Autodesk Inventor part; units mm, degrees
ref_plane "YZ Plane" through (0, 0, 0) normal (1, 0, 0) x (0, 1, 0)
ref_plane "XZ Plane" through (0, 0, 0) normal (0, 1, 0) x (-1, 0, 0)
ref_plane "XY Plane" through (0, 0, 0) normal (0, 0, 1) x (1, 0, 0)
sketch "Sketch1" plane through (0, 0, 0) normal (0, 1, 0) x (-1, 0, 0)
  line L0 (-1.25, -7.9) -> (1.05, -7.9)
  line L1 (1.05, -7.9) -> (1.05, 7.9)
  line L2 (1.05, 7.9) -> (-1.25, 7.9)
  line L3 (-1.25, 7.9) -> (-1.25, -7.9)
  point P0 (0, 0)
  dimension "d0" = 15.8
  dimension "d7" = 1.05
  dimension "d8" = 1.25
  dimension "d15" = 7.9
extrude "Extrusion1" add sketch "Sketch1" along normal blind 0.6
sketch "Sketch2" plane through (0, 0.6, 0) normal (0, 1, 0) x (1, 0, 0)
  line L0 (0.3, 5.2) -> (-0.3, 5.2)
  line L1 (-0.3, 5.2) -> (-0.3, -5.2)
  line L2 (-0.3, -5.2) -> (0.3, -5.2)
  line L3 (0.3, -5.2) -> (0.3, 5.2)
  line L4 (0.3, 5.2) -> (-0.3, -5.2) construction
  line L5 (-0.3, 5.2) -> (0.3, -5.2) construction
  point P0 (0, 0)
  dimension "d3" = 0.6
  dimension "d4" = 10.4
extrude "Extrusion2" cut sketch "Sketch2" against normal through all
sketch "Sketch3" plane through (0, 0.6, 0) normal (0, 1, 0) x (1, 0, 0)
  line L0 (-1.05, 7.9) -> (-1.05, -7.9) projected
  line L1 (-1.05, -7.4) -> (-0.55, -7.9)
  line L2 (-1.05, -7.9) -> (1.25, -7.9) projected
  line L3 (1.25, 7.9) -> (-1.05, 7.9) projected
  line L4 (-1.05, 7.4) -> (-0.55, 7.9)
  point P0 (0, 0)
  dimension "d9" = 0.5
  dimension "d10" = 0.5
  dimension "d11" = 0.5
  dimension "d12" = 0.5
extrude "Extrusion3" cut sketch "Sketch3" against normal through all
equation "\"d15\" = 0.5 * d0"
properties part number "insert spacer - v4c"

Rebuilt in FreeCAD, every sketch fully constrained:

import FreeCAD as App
import Part
import Sketcher

V = App.Vector

doc = App.newDocument("Part")
body = doc.addObject("PartDesign::Body", "Body")

sketch1 = body.newObject("Sketcher::SketchObject", "Sketch")
sketch1.AttachmentSupport = (doc.getObject("XZ_Plane"), [""])
sketch1.MapMode = "FlatFace"
sketch1.addGeometry([
    Part.LineSegment(V(1.2, 7.9, 0), V(1.2, -7.9, 0)),
    Part.LineSegment(V(1.2, -7.9, 0), V(-1.1, -7.9, 0)),
    Part.LineSegment(V(-1.1, -7.9, 0), V(-1.1, 7.9, 0)),
    Part.LineSegment(V(-1.1, 7.9, 0), V(1.2, 7.9, 0)),
], False)
sketch1.addConstraint([
    Sketcher.Constraint("Coincident", 0, 2, 1, 1),
    Sketcher.Constraint("Coincident", 1, 2, 2, 1),
    Sketcher.Constraint("Coincident", 2, 2, 3, 1),
    Sketcher.Constraint("Coincident", 3, 2, 0, 1),
    Sketcher.Constraint("Vertical", 0),
    Sketcher.Constraint("Horizontal", 1),
    Sketcher.Constraint("Vertical", 2),
    Sketcher.Constraint("Horizontal", 3),
    Sketcher.Constraint("DistanceY", 0, 2, 0, 1, 15.8),
    Sketcher.Constraint("DistanceY", 0, 2, -1, 1, 7.9),
    Sketcher.Constraint("DistanceX", -1, 1, 0, 2, 1.25),
    Sketcher.Constraint("DistanceX", 1, 2, -1, 1, 1.05),
])
pad1 = body.newObject("PartDesign::Pad", "Pad")
pad1.Profile = sketch1
pad1.Length = 0.6
pad1.Reversed = True

sketch2 = body.newObject("Sketcher::SketchObject", "Sketch001")
sketch2.AttachmentSupport = (doc.getObject("XZ_Plane"), [""])
sketch2.MapMode = "FlatFace"
sketch2.AttachmentOffset = App.Placement(V(0, 0, -0.6), App.Rotation())
sketch2.addGeometry([
    Part.LineSegment(V(0.3, 5.2, 0), V(0.3, -5.2, 0)),
    Part.LineSegment(V(0.3, -5.2, 0), V(-0.3, -5.2, 0)),
    Part.LineSegment(V(-0.3, -5.2, 0), V(-0.3, 5.2, 0)),
    Part.LineSegment(V(-0.3, 5.2, 0), V(0.3, 5.2, 0)),
], False)
sketch2.addConstraint([
    Sketcher.Constraint("Coincident", 0, 2, 1, 1),
    Sketcher.Constraint("Coincident", 1, 2, 2, 1),
    Sketcher.Constraint("Coincident", 2, 2, 3, 1),
    Sketcher.Constraint("Coincident", 3, 2, 0, 1),
    Sketcher.Constraint("Vertical", 0),
    Sketcher.Constraint("Horizontal", 1),
    Sketcher.Constraint("Vertical", 2),
    Sketcher.Constraint("Horizontal", 3),
    Sketcher.Constraint("Symmetric", 0, 2, 2, 2, -1, 1),
    Sketcher.Constraint("DistanceX", 1, 2, 1, 1, 0.6),
    Sketcher.Constraint("DistanceY", 0, 2, 0, 1, 10.4),
])
pocket1 = body.newObject("PartDesign::Pocket", "Pocket")
pocket1.Profile = sketch2
pocket1.Type = "ThroughAll"
pocket1.Reversed = True

sketch3 = body.newObject("Sketcher::SketchObject", "Sketch002")
sketch3.AttachmentSupport = (doc.getObject("XZ_Plane"), [""])
sketch3.MapMode = "FlatFace"
sketch3.AttachmentOffset = App.Placement(V(0, 0, -0.6), App.Rotation())
sketch3.addGeometry([
    Part.LineSegment(V(-0.6, -7.9, 0), V(-1.1, -7.9, 0)),
    Part.LineSegment(V(-1.1, -7.9, 0), V(-1.1, -7.4, 0)),
    Part.LineSegment(V(-1.1, -7.4, 0), V(-0.6, -7.9, 0)),
    Part.LineSegment(V(-0.6, 7.9, 0), V(-1.1, 7.4, 0)),
    Part.LineSegment(V(-1.1, 7.4, 0), V(-1.1, 7.9, 0)),
    Part.LineSegment(V(-1.1, 7.9, 0), V(-0.6, 7.9, 0)),
], False)
sketch3.addConstraint([
    Sketcher.Constraint("Coincident", 0, 2, 1, 1),
    Sketcher.Constraint("Coincident", 1, 2, 2, 1),
    Sketcher.Constraint("Coincident", 2, 2, 0, 1),
    Sketcher.Constraint("Coincident", 3, 2, 4, 1),
    Sketcher.Constraint("Coincident", 4, 2, 5, 1),
    Sketcher.Constraint("Coincident", 5, 2, 3, 1),
    Sketcher.Constraint("Horizontal", 0),
    Sketcher.Constraint("Vertical", 1),
    Sketcher.Constraint("Vertical", 4),
    Sketcher.Constraint("Horizontal", 5),
    Sketcher.Constraint("Symmetric", 1, 2, 3, 2, -1),
    Sketcher.Constraint("Symmetric", 2, 2, 5, 2, -1),
    Sketcher.Constraint("Perpendicular", 2, 3),
    Sketcher.Constraint("DistanceX", 0, 2, 0, 1, 0.5),
    Sketcher.Constraint("DistanceY", 0, 2, -1, 1, 7.9),
    Sketcher.Constraint("DistanceX", 0, 2, -1, 1, 1.05),
])
pocket2 = body.newObject("PartDesign::Pocket", "Pocket001")
pocket2.Profile = sketch3
pocket2.Type = "ThroughAll"
pocket2.Reversed = True

doc.recompute()
